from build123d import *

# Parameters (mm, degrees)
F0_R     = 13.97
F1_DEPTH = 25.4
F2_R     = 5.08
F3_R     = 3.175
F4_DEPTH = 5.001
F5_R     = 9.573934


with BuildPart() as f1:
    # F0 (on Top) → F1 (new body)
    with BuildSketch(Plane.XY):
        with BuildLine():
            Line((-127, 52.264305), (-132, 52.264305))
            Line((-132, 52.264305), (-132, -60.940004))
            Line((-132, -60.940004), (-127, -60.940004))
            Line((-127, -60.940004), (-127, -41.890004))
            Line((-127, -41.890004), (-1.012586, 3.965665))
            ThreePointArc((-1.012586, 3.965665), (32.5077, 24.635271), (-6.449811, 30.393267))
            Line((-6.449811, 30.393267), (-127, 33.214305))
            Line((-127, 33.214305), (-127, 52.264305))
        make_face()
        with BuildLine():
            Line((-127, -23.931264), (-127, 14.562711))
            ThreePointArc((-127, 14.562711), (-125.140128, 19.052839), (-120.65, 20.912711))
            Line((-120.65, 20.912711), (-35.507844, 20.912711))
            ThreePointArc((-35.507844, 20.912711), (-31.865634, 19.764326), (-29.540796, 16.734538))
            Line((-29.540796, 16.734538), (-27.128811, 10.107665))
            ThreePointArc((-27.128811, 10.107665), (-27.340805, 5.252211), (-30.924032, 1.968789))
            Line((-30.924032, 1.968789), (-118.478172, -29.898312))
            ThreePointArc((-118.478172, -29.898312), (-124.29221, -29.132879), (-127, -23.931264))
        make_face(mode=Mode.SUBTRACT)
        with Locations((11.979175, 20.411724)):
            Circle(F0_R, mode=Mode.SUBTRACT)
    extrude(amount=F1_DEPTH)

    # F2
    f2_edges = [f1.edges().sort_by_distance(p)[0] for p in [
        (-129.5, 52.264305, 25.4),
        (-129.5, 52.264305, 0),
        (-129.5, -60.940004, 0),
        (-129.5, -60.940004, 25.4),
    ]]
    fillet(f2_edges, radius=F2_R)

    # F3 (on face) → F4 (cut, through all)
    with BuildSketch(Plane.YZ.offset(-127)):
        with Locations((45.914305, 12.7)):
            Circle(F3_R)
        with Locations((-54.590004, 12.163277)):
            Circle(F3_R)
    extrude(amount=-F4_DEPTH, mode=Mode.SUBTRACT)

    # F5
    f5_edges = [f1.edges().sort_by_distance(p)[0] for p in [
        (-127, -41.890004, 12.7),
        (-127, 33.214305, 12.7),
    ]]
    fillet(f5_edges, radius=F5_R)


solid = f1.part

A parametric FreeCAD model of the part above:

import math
import FreeCAD as App
import Part
import Sketcher

V = App.Vector
Q = App.Units.Quantity


def edges_at(feature, points):
    """Names of the edges that pass closest to the given points."""
    edges = feature.Shape.Edges
    near = lambda p: min(range(len(edges)), key=lambda i: edges[i].distToShape(Part.Vertex(*p))[0])
    return sorted({f"Edge{near(p) + 1}" for p in points})

doc = App.newDocument("Part")
body = doc.addObject("PartDesign::Body", "Body")

sketch1 = doc.addObject("Sketcher::SketchObject", "Sketch")
body.addObject(sketch1)
sketch1.AttachmentSupport = (doc.XY_Plane, [""])
sketch1.MapMode = "FlatFace"
sketch1.addGeometry(Part.LineSegment(V(-127, 52, 0), V(-132, 52, 0)), False)
sketch1.addGeometry(Part.LineSegment(V(-132, 52, 0), V(-132, -61, 0)), False)
sketch1.addGeometry(Part.LineSegment(V(-132, -61, 0), V(-127, -61, 0)), False)
sketch1.addGeometry(Part.LineSegment(V(-127, -61, 0), V(-127, -42, 0)), False)
sketch1.addGeometry(Part.LineSegment(V(-127, -42, 0), V(-1, 4, 0)), False)
sketch1.addGeometry(Part.ArcOfCircle(Part.Circle(V(12, 20, 0), V(0, 0, 1), 21), math.radians(-128), math.radians(152)), False)
sketch1.addGeometry(Part.LineSegment(V(-6, 30, 0), V(-127, 33, 0)), False)
sketch1.addGeometry(Part.LineSegment(V(-127, 33, 0), V(-127, 52, 0)), False)
sketch1.addGeometry(Part.ArcOfCircle(Part.Circle(V(-121, -24, 0), V(0, 0, 1), 6), math.radians(-180), math.radians(-70)), False)
sketch1.addGeometry(Part.LineSegment(V(-127, -24, 0), V(-127, 15, 0)), False)
sketch1.addGeometry(Part.ArcOfCircle(Part.Circle(V(-121, 15, 0), V(0, 0, 1), 6), math.radians(90), math.radians(180)), False)
sketch1.addGeometry(Part.LineSegment(V(-121, 21, 0), V(-36, 21, 0)), False)
sketch1.addGeometry(Part.ArcOfCircle(Part.Circle(V(-36, 15, 0), V(0, 0, 1), 6), math.radians(20), math.radians(90)), False)
sketch1.addGeometry(Part.LineSegment(V(-30, 17, 0), V(-27, 10, 0)), False)
sketch1.addGeometry(Part.ArcOfCircle(Part.Circle(V(-33, 8, 0), V(0, 0, 1), 6), math.radians(-70), math.radians(20)), False)
sketch1.addGeometry(Part.LineSegment(V(-31, 2, 0), V(-118, -30, 0)), False)
sketch1.addGeometry(Part.Circle(V(12, 20, 0), V(0, 0, 1), 14), False)
sketch1.addConstraint(Sketcher.Constraint("Coincident", 0, 2, 1, 1))
sketch1.addConstraint(Sketcher.Constraint("Coincident", 1, 2, 2, 1))
sketch1.addConstraint(Sketcher.Constraint("Coincident", 2, 2, 3, 1))
sketch1.addConstraint(Sketcher.Constraint("Coincident", 3, 2, 4, 1))
sketch1.addConstraint(Sketcher.Constraint("Coincident", 4, 2, 5, 1))
sketch1.addConstraint(Sketcher.Constraint("Coincident", 5, 2, 6, 1))
sketch1.addConstraint(Sketcher.Constraint("Coincident", 6, 2, 7, 1))
sketch1.addConstraint(Sketcher.Constraint("Coincident", 7, 2, 0, 1))
sketch1.addConstraint(Sketcher.Constraint("Tangent", 8, 1, 9, 1))
sketch1.addConstraint(Sketcher.Constraint("Tangent", 9, 2, 10, 2))
sketch1.addConstraint(Sketcher.Constraint("Tangent", 10, 1, 11, 1))
sketch1.addConstraint(Sketcher.Constraint("Tangent", 11, 2, 12, 2))
sketch1.addConstraint(Sketcher.Constraint("Tangent", 12, 1, 13, 1))
sketch1.addConstraint(Sketcher.Constraint("Tangent", 13, 2, 14, 2))
sketch1.addConstraint(Sketcher.Constraint("Tangent", 14, 1, 15, 1))
sketch1.addConstraint(Sketcher.Constraint("Tangent", 15, 2, 8, 2))
sketch1.addConstraint(Sketcher.Constraint("Horizontal", 0))
sketch1.addConstraint(Sketcher.Constraint("Vertical", 1))
sketch1.addConstraint(Sketcher.Constraint("Horizontal", 2))
sketch1.addConstraint(Sketcher.Constraint("Vertical", 3))
sketch1.addConstraint(Sketcher.Constraint("Vertical", 7))
sketch1.addConstraint(Sketcher.Constraint("Vertical", 9))
sketch1.addConstraint(Sketcher.Constraint("Horizontal", 11))
sketch1.addConstraint(Sketcher.Constraint("Coincident", 16, 3, 5, 3))
sketch1.addConstraint(Sketcher.Constraint("Equal", 8, 10))
sketch1.addConstraint(Sketcher.Constraint("Equal", 10, 12))
sketch1.addConstraint(Sketcher.Constraint("Equal", 12, 14))
sketch1.addConstraint(Sketcher.Constraint("Perpendicular", 4, 13))
sketch1.addConstraint(Sketcher.Constraint("Perpendicular", 13, 15))
sketch1.addConstraint(Sketcher.Constraint("Vertical", 3, 2, 6, 2))
sketch1.addConstraint(Sketcher.Constraint("Vertical", 7, 2, 8, 1))
sketch1.addConstraint(Sketcher.Constraint("Equal", 3, 7))
sketch1.addConstraint(Sketcher.Constraint("Diameter", 16, Q("1.1 in")))
sketch1.addConstraint(Sketcher.Constraint("Radius", 8, Q("0.25 in")))
sketch1.addConstraint(Sketcher.Constraint("DistanceX", 2, 2, -1, 1, Q("5 in")))
sketch1.addConstraint(Sketcher.Constraint("Angle", 4, Q("20 deg")))
sketch1.addConstraint(Sketcher.Constraint("DistanceY", 3, 1, 3, 2, Q("0.75 in")))
sketch1.addConstraint(Sketcher.Constraint("Radius", 5, Q("20.9585 mm")))
sketch1.addConstraint(Sketcher.Constraint("DistanceX", 0, 2, 0, 1, Q("5 mm")))
sketch1.addConstraint(Sketcher.Constraint("DistanceY", 1, 2, 1, 1, Q("113.204309 mm")))
sketch1.addConstraint(Sketcher.Constraint("DistanceY", 8, 3, 14, 3, Q("31.8671 mm")))
sketch1.addConstraint(Sketcher.Constraint("DistanceY", 14, 3, 12, 1, Q("8.798701 mm")))
sketch1.addConstraint(Sketcher.Constraint("DistanceY", 4, 2, 13, 2, Q("6.142 mm")))
sketch1.addConstraint(Sketcher.Constraint("DistanceY", -1, 1, 10, 3, Q("14.562711 mm")))
sketch1.addConstraint(Sketcher.Constraint("DistanceX", 5, 2, -1, 1, Q("6.449811 mm")))
sketch1.addConstraint(Sketcher.Constraint("DistanceX", 12, 3, 5, 3, Q("47.48702 mm")))
sketch1.addConstraint(Sketcher.Constraint("DistanceY", 5, 3, 0, 2, Q("31.852581 mm")))
pad1 = doc.addObject("PartDesign::Pad", "Pad")
body.addObject(pad1)
pad1.Profile = sketch1
pad1.Length = Q("1 in")
doc.recompute()

fillet = doc.addObject("PartDesign::Fillet", "Fillet")
body.addObject(fillet)
fillet.Base = (pad1, edges_at(pad1, [
    (-129.5, 52.264, 25.4),
    (-129.5, 52.264, 0),
    (-129.5, -60.94, 0),
    (-129.5, -60.94, 25.4),
]))
fillet.Radius = Q("0.2 in")

sketch2 = doc.addObject("Sketcher::SketchObject", "Sketch001")
body.addObject(sketch2)
sketch2.AttachmentSupport = (doc.YZ_Plane, [""])
sketch2.MapMode = "FlatFace"
sketch2.AttachmentOffset = App.Placement(V(0, 0, -5 * 25.4), App.Rotation())
sketch2.addGeometry(Part.Circle(V(45.9, 12.7, 0), V(0, 0, 1), 3.2), False)
sketch2.addGeometry(Part.Circle(V(-54.6, 12.2, 0), V(0, 0, 1), 3.2), False)
sketch2.addConstraint(Sketcher.Constraint("Equal", 0, 1))
sketch2.addConstraint(Sketcher.Constraint("Diameter", 0, Q("0.25 in")))
sketch2.addConstraint(Sketcher.Constraint("DistanceY", -1, 1, 0, 3, Q("0.5 in")))
sketch2.addConstraint(Sketcher.Constraint("DistanceX", 1, 3, 0, 3, Q("100.504309 mm")))
sketch2.addConstraint(Sketcher.Constraint("DistanceX", -1, 1, 0, 3, Q("45.914305 mm")))
sketch2.addConstraint(Sketcher.Constraint("DistanceY", -1, 1, 1, 3, Q("12.163277 mm")))
pocket1 = doc.addObject("PartDesign::Pocket", "Pocket")
body.addObject(pocket1)
pocket1.Profile = sketch2
pocket1.Type = "ThroughAll"
doc.recompute()

fillet2 = doc.addObject("PartDesign::Fillet", "Fillet001")
body.addObject(fillet2)
fillet2.Base = (pocket1, edges_at(pocket1, [(-127, -41.89, 12.7), (-127, 33.214, 12.7)]))
fillet2.Radius = 9.573934

doc.recompute()
